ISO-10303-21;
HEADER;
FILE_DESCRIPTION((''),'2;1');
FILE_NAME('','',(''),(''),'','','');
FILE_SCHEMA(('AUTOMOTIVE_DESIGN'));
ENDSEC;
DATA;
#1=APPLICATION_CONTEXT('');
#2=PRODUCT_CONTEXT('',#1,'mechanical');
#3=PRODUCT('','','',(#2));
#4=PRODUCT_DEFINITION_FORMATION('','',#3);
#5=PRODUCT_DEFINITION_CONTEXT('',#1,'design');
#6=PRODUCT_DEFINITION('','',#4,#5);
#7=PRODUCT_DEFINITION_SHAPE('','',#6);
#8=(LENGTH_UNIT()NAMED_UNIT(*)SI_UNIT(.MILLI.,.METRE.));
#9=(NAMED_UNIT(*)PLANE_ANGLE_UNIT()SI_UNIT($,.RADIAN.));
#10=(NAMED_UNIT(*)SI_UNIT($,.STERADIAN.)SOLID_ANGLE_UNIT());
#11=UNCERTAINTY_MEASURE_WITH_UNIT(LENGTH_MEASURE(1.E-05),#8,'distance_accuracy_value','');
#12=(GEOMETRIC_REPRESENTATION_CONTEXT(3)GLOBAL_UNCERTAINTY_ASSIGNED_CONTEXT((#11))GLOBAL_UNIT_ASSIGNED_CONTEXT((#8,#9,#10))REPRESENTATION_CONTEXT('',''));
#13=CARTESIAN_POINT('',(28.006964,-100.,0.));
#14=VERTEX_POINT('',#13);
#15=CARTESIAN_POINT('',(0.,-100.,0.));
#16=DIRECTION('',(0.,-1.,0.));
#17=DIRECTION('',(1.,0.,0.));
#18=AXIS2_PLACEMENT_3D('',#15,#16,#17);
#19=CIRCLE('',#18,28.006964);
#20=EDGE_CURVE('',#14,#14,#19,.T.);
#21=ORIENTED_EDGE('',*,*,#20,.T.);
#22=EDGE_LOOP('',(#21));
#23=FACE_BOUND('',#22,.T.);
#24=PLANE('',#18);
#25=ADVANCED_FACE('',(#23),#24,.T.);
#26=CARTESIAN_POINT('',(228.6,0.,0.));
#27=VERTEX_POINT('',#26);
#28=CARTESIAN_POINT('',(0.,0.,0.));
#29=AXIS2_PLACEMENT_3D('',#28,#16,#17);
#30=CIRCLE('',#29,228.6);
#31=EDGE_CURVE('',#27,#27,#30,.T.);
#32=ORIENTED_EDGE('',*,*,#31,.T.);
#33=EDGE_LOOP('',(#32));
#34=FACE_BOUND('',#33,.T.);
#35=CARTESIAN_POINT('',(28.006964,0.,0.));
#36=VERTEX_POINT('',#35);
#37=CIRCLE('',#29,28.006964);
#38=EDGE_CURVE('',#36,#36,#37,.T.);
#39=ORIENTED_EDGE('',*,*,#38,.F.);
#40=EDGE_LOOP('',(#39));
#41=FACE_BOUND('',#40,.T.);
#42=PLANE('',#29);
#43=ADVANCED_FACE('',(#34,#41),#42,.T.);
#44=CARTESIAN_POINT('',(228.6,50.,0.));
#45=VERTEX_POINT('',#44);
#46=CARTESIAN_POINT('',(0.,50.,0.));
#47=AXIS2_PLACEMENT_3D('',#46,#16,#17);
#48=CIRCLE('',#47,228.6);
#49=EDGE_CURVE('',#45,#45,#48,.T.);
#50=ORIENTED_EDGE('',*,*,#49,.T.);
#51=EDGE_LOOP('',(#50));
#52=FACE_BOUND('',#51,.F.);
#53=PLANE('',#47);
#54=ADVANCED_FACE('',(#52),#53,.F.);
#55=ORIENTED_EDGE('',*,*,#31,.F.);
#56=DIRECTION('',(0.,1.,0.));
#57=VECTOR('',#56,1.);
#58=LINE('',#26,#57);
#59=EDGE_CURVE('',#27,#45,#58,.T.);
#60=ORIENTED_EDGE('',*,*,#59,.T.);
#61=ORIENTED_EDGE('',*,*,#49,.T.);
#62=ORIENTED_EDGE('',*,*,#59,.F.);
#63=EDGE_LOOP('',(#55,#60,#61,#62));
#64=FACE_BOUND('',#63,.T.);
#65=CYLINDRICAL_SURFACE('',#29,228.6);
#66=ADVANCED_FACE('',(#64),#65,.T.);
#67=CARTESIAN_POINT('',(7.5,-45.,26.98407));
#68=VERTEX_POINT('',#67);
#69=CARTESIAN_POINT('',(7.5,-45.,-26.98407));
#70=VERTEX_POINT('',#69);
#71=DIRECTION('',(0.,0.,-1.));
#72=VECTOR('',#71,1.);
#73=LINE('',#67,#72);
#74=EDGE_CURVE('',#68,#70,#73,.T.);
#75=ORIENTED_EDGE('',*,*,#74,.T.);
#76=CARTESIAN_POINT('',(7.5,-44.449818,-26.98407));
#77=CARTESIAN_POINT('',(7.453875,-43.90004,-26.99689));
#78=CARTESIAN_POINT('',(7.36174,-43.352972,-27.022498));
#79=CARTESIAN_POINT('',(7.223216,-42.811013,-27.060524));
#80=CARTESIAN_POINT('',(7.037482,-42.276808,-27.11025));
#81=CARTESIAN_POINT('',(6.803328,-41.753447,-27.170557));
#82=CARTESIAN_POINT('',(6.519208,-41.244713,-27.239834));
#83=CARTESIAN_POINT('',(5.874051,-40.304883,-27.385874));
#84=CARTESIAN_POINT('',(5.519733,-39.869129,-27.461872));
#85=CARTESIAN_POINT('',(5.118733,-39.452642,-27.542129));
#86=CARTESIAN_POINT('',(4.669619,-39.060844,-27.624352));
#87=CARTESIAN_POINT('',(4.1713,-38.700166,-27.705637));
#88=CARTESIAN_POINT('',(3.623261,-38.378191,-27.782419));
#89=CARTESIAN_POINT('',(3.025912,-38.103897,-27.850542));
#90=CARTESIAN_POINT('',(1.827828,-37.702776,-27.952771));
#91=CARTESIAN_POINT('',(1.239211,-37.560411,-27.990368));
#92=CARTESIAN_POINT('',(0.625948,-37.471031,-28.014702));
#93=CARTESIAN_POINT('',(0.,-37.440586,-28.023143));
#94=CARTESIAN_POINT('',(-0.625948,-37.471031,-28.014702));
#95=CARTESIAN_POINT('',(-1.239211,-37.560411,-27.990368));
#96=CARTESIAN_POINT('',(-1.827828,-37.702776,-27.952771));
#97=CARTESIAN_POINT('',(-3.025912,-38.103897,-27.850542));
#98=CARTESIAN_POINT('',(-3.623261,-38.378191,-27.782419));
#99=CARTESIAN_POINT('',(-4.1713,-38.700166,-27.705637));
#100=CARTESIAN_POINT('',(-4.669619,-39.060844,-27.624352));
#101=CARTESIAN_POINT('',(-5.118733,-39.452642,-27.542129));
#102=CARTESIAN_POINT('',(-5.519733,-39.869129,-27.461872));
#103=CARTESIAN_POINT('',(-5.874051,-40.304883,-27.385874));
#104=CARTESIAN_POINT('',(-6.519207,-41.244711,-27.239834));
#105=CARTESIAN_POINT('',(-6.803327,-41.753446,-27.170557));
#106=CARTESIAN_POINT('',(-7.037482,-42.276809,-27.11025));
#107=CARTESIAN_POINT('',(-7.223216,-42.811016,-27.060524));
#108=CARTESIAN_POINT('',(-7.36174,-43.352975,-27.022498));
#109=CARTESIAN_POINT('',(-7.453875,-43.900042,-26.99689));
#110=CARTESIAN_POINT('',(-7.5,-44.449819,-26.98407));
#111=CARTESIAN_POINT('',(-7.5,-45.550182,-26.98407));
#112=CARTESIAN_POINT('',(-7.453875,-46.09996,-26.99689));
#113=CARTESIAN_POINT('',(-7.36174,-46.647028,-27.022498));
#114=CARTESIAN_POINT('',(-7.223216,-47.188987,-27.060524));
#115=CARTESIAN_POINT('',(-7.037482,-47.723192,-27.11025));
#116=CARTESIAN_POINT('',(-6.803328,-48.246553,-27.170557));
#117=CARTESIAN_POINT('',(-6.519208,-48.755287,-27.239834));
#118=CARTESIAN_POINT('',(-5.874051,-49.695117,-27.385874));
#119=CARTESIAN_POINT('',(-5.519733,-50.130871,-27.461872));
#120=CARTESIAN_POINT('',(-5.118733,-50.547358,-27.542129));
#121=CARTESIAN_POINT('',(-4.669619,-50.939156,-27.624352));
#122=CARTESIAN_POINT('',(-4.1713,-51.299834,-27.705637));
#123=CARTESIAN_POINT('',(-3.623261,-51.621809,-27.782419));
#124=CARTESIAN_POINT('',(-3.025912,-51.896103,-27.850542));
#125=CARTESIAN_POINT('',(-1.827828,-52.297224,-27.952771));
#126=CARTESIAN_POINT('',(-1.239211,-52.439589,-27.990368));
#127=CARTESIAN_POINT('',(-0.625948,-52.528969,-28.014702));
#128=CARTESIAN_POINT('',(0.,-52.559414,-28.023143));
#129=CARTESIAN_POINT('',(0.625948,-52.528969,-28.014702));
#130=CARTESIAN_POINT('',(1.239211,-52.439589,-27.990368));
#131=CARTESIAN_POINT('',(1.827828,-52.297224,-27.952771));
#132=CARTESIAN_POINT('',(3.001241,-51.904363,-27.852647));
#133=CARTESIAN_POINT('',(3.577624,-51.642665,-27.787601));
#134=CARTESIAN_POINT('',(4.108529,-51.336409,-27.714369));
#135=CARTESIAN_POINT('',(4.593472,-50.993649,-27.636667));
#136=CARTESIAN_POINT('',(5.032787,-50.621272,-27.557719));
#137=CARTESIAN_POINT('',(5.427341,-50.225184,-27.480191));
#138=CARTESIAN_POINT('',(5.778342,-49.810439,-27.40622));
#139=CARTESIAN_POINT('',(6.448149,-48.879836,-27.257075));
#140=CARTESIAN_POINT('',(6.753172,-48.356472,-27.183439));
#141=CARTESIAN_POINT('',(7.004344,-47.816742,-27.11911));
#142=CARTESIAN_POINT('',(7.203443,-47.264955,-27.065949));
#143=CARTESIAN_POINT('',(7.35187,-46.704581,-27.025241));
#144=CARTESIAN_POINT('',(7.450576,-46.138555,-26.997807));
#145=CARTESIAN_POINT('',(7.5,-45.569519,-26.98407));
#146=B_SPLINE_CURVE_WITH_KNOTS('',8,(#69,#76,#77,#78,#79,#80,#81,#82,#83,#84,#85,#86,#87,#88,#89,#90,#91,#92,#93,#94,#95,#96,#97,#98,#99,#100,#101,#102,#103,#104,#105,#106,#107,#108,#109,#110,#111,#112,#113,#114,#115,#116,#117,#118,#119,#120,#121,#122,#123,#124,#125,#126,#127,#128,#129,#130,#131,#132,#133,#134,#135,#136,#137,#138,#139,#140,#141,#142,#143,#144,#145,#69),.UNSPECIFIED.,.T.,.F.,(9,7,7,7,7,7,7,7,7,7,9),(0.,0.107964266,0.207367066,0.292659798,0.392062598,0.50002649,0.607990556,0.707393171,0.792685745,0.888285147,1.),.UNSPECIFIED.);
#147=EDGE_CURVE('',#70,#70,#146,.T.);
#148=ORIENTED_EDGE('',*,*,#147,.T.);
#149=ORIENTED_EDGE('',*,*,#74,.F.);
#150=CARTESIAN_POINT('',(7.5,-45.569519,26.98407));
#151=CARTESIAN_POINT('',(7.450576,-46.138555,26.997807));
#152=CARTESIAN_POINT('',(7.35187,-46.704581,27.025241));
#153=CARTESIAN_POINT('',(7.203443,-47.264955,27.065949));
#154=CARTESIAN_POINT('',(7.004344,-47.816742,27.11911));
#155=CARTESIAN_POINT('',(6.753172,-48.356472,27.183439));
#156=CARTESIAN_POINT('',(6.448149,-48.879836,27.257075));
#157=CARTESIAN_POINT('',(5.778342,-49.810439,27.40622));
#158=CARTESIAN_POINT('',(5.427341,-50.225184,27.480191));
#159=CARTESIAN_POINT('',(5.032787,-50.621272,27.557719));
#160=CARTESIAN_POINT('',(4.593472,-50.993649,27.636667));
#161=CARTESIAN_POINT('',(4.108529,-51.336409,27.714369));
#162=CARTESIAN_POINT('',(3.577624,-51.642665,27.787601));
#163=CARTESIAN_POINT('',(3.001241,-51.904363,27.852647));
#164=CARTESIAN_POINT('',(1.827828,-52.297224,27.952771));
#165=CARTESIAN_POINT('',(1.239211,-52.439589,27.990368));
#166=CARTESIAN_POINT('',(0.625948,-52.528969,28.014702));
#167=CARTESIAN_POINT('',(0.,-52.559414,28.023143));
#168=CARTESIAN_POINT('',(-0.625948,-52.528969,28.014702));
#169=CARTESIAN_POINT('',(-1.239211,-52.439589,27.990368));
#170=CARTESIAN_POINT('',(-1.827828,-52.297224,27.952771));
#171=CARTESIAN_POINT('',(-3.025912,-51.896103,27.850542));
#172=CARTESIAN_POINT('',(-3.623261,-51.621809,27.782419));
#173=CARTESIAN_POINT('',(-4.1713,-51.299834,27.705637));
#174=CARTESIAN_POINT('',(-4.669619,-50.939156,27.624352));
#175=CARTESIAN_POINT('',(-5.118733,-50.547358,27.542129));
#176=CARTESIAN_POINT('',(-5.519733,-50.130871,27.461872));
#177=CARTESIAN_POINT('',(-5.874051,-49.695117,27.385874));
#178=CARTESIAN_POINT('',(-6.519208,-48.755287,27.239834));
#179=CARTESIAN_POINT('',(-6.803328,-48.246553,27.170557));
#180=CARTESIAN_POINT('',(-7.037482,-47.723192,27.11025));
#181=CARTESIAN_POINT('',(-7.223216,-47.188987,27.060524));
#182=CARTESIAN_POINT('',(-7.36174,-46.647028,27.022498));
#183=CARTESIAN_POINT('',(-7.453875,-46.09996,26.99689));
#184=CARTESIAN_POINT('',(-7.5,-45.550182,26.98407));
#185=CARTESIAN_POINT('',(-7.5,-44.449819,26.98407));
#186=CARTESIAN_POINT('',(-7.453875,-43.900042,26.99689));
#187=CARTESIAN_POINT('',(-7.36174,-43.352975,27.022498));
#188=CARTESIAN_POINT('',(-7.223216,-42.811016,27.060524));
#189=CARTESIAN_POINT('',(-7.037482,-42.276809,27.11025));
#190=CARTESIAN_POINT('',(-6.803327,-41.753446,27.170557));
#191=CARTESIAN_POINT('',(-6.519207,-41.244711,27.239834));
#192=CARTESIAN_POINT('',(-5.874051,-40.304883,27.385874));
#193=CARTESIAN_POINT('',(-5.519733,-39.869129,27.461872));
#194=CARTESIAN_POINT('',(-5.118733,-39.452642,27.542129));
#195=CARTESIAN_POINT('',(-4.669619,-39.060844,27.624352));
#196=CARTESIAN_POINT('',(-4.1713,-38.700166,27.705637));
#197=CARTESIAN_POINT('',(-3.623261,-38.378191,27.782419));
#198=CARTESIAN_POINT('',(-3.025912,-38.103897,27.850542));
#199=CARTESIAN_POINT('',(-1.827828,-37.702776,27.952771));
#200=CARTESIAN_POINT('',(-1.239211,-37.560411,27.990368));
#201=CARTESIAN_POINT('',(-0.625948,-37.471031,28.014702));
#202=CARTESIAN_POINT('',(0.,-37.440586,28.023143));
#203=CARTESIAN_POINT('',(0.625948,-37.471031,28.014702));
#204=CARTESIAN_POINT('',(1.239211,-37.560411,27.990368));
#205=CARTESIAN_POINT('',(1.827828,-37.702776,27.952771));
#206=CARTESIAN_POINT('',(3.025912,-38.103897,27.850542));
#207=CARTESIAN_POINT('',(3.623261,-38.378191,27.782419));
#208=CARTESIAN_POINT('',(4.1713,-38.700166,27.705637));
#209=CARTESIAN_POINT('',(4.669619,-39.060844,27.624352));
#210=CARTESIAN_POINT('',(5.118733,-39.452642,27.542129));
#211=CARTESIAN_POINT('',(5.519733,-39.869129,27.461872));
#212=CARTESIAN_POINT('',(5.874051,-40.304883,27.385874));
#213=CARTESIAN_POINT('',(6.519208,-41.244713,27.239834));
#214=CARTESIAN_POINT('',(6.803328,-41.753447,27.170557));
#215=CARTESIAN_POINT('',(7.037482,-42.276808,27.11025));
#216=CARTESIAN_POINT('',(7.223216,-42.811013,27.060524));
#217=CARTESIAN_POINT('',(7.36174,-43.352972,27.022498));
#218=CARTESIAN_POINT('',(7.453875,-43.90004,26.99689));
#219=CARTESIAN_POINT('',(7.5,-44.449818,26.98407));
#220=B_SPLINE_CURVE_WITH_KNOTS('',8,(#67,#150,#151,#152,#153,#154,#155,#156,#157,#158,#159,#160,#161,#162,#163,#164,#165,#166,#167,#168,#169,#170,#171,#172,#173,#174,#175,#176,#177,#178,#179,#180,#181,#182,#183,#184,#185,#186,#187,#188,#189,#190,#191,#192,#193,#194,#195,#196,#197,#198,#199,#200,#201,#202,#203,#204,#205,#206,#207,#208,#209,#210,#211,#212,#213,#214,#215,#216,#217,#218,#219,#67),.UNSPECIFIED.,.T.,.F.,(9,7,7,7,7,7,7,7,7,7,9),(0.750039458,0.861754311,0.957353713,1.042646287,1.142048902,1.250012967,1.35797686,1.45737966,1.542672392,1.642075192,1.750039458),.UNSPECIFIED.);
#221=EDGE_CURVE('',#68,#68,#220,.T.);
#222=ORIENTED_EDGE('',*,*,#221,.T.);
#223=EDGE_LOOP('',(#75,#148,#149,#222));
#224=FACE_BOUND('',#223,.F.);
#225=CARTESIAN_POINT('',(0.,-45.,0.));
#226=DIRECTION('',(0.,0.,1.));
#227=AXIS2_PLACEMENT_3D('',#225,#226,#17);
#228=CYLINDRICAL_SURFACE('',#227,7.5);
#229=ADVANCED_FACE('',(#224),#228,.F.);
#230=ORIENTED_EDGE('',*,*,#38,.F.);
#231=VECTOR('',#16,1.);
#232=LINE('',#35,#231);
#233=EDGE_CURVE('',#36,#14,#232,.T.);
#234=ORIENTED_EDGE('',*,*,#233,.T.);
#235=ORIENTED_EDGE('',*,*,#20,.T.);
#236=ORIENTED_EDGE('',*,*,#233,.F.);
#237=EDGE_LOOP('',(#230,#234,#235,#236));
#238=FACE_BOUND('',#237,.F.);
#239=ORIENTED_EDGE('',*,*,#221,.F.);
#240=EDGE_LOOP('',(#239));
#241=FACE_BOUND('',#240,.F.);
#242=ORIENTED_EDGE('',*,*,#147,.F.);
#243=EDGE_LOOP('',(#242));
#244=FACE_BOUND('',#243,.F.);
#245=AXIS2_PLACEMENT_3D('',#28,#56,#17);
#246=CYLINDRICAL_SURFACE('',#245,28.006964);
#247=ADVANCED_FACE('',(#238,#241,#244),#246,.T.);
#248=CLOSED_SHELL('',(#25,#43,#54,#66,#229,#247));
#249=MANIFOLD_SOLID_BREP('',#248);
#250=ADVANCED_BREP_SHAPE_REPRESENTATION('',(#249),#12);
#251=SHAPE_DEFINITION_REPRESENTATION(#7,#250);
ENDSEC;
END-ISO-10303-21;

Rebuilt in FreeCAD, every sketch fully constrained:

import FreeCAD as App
import Part
import Sketcher
from FreeCAD import Vector
Q = App.Units.Quantity

doc = App.newDocument("Part")
body = doc.addObject("PartDesign::Body", "Body")

sketch1 = doc.addObject("Sketcher::SketchObject", "Sketch")
body.addObject(sketch1)
sketch1.AttachmentSupport = (doc.XZ_Plane, [""])
sketch1.MapMode = "FlatFace"
sketch1.addGeometry(Part.Circle(Vector(0, 0, 0), Vector(0, 0, 1), 28), False)
sketch1.addConstraint([
    Sketcher.Constraint("Coincident", 0, 3, -1, 1),
    Sketcher.Constraint("Diameter", 0, Q("56.013927 mm")),
])
pad1 = doc.addObject("PartDesign::Pad", "Pad")
body.addObject(pad1)
pad1.Profile = sketch1
pad1.Length = 100

sketch2 = doc.addObject("Sketcher::SketchObject", "Sketch001")
body.addObject(sketch2)
sketch2.AttachmentSupport = (doc.XZ_Plane, [""])
sketch2.MapMode = "FlatFace"
sketch2.addGeometry(Part.Circle(Vector(0, 0, 0), Vector(0, 0, 1), 229), False)
sketch2.addConstraint([
    Sketcher.Constraint("Coincident", 0, 3, -1, 1),
    Sketcher.Constraint("Diameter", 0, Q("457.2 mm")),
])
pad2 = doc.addObject("PartDesign::Pad", "Pad001")
body.addObject(pad2)
pad2.Profile = sketch2
pad2.Length = 50
pad2.Reversed = True

sketch3 = doc.addObject("Sketcher::SketchObject", "Sketch002")
body.addObject(sketch3)
sketch3.AttachmentSupport = (doc.XY_Plane, [""])
sketch3.MapMode = "FlatFace"
sketch3.addGeometry(Part.Circle(Vector(0, -45, 0), Vector(0, 0, 1), 8), False)
sketch3.addConstraint([
    Sketcher.Constraint("PointOnObject", 0, 3, -2),
    Sketcher.Constraint("Diameter", 0, Q("15 mm")),
    Sketcher.Constraint("DistanceY", 0, 3, -1, 1, Q("45 mm")),
])
pocket1 = doc.addObject("PartDesign::Pocket", "Pocket")
body.addObject(pocket1)
pocket1.Profile = sketch3
pocket1.Type = "ThroughAll"
pocket1.Midplane = True

doc.recompute()
